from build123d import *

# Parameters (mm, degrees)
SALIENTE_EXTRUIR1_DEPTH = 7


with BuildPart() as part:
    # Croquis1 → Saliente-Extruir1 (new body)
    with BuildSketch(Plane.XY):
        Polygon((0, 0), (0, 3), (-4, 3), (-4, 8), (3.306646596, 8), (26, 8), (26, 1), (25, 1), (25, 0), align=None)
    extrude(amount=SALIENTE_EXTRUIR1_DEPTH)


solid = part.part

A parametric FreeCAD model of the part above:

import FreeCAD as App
import Part
import Sketcher

V = App.Vector
Q = App.Units.Quantity


def add_polygon(sketch, points):
    """Adds a closed chain of lines whose ends are joined by coincident constraints."""
    first, n = sketch.GeometryCount, len(points)
    for a, b in zip(points, points[1:] + points[:1]):
        sketch.addGeometry(Part.LineSegment(App.Vector(*a, 0), App.Vector(*b, 0)), False)
    for i in range(n):
        sketch.addConstraint(Sketcher.Constraint("Coincident", first + i, 2, first + (i + 1) % n, 1))

doc = App.newDocument("Part")
body = doc.addObject("PartDesign::Body", "Body")

sketch1 = body.newObject("Sketcher::SketchObject", "Sketch")
sketch1.AttachmentSupport = (doc.getObject("XY_Plane"), [""])
sketch1.MapMode = "FlatFace"
add_polygon(sketch1, [(0, 3), (0, 0), (25, 0), (25, 1), (26, 1), (26, 8), (-4, 8), (-4, 3)])
sketch1.addConstraint(Sketcher.Constraint("Vertical", 0))
sketch1.addConstraint(Sketcher.Constraint("Horizontal", 1))
sketch1.addConstraint(Sketcher.Constraint("Vertical", 2))
sketch1.addConstraint(Sketcher.Constraint("Horizontal", 3))
sketch1.addConstraint(Sketcher.Constraint("Vertical", 4))
sketch1.addConstraint(Sketcher.Constraint("Horizontal", 5))
sketch1.addConstraint(Sketcher.Constraint("Vertical", 6))
sketch1.addConstraint(Sketcher.Constraint("Horizontal", 7))
sketch1.addConstraint(Sketcher.Constraint("Coincident", 0, 2, -1, 1))
sketch1.addConstraint(Sketcher.Constraint("Equal", 3, 2))
sketch1.addConstraint(Sketcher.Constraint("DistanceX", 1, 1, 1, 2, Q("25 mm")))
sketch1.addConstraint(Sketcher.Constraint("DistanceX", 3, 1, 3, 2, Q("1 mm")))
sketch1.addConstraint(Sketcher.Constraint("DistanceX", 5, 2, 5, 1, Q("30 mm")))
sketch1.addConstraint(Sketcher.Constraint("DistanceY", 0, 2, 0, 1, Q("3 mm")))
sketch1.addConstraint(Sketcher.Constraint("DistanceY", 4, 1, 4, 2, Q("7 mm")))
pad1 = body.newObject("PartDesign::Pad", "Pad")
pad1.Profile = sketch1
pad1.Length = 7

doc.recompute()
